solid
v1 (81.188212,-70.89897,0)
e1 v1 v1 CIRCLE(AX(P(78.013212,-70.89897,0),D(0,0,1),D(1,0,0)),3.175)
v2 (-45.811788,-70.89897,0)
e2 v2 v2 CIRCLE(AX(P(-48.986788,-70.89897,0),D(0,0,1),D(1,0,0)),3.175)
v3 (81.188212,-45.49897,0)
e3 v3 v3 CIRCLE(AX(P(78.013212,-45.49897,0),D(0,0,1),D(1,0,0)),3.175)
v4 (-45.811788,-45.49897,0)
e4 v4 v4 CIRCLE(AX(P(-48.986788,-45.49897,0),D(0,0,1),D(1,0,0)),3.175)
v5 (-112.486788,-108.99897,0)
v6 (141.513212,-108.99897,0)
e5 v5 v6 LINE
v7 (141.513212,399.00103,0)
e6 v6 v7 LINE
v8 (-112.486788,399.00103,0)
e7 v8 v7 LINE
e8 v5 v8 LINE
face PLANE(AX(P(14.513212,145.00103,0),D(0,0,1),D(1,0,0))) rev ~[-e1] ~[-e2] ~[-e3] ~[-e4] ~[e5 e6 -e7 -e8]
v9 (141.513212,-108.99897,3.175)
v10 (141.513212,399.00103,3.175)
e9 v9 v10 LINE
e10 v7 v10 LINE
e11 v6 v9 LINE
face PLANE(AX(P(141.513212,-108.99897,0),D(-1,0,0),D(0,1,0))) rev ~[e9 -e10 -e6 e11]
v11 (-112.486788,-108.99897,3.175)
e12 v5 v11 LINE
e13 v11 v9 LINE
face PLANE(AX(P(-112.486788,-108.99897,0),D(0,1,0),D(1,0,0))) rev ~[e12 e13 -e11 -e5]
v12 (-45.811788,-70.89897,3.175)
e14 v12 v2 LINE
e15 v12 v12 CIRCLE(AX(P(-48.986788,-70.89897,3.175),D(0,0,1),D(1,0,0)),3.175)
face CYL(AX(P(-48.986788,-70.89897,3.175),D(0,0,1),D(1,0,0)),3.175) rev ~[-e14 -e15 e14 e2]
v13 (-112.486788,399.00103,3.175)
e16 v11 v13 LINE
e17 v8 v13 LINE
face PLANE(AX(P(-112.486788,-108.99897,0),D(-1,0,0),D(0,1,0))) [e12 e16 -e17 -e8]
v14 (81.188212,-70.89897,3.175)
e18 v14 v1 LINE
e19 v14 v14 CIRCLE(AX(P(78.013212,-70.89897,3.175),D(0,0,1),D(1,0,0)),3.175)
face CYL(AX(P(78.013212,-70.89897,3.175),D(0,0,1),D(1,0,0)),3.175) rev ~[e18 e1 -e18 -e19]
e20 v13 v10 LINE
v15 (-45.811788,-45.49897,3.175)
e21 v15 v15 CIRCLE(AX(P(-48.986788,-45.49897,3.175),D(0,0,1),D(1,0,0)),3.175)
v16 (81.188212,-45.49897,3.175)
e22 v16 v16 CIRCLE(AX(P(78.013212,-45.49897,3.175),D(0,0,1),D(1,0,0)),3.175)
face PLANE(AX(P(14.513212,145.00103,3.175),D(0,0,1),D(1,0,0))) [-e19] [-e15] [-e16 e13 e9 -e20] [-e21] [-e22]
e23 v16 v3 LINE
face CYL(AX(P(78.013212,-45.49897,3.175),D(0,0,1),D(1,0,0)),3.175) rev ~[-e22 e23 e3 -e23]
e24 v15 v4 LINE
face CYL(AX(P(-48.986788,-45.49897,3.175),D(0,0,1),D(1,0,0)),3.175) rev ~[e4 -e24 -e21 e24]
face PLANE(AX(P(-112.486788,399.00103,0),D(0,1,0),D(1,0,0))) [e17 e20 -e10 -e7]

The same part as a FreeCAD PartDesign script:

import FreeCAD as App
import Part
import Sketcher
from FreeCAD import Vector
Q = App.Units.Quantity

doc = App.newDocument("Part")
body = doc.addObject("PartDesign::Body", "Body")

# Sketch on XY plane
sketch1 = body.newObject("Sketcher::SketchObject", "Sketch")
sketch1.AttachmentSupport = (doc.getObject("XY_Plane"), [""])
sketch1.MapMode = "FlatFace"
sketch1.addGeometry([
    Part.LineSegment(Vector(-112.486788, 399.00103, 0), Vector(-112.486788, -108.99897, 0)),
    Part.LineSegment(Vector(-112.486788, -108.99897, 0), Vector(141.513212, -108.99897, 0)),
    Part.LineSegment(Vector(141.513212, -108.99897, 0), Vector(141.513212, 399.00103, 0)),
    Part.LineSegment(Vector(141.513212, 399.00103, 0), Vector(-112.486788, 399.00103, 0)),
], False)
sketch1.addConstraint([
    Sketcher.Constraint("Coincident", 0, 2, 1, 1),
    Sketcher.Constraint("Coincident", 1, 2, 2, 1),
    Sketcher.Constraint("Coincident", 2, 2, 3, 1),
    Sketcher.Constraint("Coincident", 3, 2, 0, 1),
    Sketcher.Constraint("Vertical", 0),
    Sketcher.Constraint("Horizontal", 1),
    Sketcher.Constraint("Vertical", 2),
    Sketcher.Constraint("Horizontal", 3),
    Sketcher.Constraint("DistanceX", 1, 1, 1, 2, Q("10 in")),
    Sketcher.Constraint("DistanceY", 0, 2, 0, 1, Q("20 in")),
    Sketcher.Constraint("DistanceX", 0, 2, -1, 1, 112.486788),
    Sketcher.Constraint("DistanceY", 0, 2, -1, 1, 108.99897),
])
pad1 = body.newObject("PartDesign::Pad", "Pad")
pad1.Profile = sketch1
pad1.Length = Q("0.125 in")

# Sketch on XY plane
sketch2 = body.newObject("Sketcher::SketchObject", "Sketch001")
sketch2.AttachmentSupport = (doc.getObject("XY_Plane"), [""])
sketch2.MapMode = "FlatFace"
sketch2.AttachmentOffset = App.Placement(Vector(0, 0, 0.125 * 25.4), App.Rotation())
sketch2.addGeometry([
    Part.Circle(Vector(-48.986788, -45.49897, 0), Vector(0, 0, 1), 3.175),
    Part.Circle(Vector(78.013212, -45.49897, 0), Vector(0, 0, 1), 3.175),
    Part.Circle(Vector(-48.986788, -70.89897, 0), Vector(0, 0, 1), 3.175),
    Part.Circle(Vector(78.013212, -70.89897, 0), Vector(0, 0, 1), 3.175),
], False)
sketch2.addConstraint([
    Sketcher.Constraint("Equal", 0, 1),
    Sketcher.Constraint("Equal", 1, 2),
    Sketcher.Constraint("Equal", 2, 3),
    Sketcher.Constraint("Horizontal", 0, 3, 1, 3),
    Sketcher.Constraint("Horizontal", 2, 3, 3, 3),
    Sketcher.Constraint("Vertical", 0, 3, 2, 3),
    Sketcher.Constraint("Vertical", 1, 3, 3, 3),
    Sketcher.Constraint("Diameter", 0, Q("0.25 in")),
    Sketcher.Constraint("DistanceX", 0, 3, 1, 3, Q("5 in")),
    Sketcher.Constraint("DistanceY", 2, 3, 0, 3, Q("1 in")),
    Sketcher.Constraint("DistanceY", 0, 3, -1, 1, 45.49897),
    Sketcher.Constraint("DistanceX", -1, 1, 1, 3, 78.013212),
])
pocket1 = body.newObject("PartDesign::Pocket", "Pocket")
pocket1.Profile = sketch2
pocket1.Type = "ThroughAll"

doc.recompute()
